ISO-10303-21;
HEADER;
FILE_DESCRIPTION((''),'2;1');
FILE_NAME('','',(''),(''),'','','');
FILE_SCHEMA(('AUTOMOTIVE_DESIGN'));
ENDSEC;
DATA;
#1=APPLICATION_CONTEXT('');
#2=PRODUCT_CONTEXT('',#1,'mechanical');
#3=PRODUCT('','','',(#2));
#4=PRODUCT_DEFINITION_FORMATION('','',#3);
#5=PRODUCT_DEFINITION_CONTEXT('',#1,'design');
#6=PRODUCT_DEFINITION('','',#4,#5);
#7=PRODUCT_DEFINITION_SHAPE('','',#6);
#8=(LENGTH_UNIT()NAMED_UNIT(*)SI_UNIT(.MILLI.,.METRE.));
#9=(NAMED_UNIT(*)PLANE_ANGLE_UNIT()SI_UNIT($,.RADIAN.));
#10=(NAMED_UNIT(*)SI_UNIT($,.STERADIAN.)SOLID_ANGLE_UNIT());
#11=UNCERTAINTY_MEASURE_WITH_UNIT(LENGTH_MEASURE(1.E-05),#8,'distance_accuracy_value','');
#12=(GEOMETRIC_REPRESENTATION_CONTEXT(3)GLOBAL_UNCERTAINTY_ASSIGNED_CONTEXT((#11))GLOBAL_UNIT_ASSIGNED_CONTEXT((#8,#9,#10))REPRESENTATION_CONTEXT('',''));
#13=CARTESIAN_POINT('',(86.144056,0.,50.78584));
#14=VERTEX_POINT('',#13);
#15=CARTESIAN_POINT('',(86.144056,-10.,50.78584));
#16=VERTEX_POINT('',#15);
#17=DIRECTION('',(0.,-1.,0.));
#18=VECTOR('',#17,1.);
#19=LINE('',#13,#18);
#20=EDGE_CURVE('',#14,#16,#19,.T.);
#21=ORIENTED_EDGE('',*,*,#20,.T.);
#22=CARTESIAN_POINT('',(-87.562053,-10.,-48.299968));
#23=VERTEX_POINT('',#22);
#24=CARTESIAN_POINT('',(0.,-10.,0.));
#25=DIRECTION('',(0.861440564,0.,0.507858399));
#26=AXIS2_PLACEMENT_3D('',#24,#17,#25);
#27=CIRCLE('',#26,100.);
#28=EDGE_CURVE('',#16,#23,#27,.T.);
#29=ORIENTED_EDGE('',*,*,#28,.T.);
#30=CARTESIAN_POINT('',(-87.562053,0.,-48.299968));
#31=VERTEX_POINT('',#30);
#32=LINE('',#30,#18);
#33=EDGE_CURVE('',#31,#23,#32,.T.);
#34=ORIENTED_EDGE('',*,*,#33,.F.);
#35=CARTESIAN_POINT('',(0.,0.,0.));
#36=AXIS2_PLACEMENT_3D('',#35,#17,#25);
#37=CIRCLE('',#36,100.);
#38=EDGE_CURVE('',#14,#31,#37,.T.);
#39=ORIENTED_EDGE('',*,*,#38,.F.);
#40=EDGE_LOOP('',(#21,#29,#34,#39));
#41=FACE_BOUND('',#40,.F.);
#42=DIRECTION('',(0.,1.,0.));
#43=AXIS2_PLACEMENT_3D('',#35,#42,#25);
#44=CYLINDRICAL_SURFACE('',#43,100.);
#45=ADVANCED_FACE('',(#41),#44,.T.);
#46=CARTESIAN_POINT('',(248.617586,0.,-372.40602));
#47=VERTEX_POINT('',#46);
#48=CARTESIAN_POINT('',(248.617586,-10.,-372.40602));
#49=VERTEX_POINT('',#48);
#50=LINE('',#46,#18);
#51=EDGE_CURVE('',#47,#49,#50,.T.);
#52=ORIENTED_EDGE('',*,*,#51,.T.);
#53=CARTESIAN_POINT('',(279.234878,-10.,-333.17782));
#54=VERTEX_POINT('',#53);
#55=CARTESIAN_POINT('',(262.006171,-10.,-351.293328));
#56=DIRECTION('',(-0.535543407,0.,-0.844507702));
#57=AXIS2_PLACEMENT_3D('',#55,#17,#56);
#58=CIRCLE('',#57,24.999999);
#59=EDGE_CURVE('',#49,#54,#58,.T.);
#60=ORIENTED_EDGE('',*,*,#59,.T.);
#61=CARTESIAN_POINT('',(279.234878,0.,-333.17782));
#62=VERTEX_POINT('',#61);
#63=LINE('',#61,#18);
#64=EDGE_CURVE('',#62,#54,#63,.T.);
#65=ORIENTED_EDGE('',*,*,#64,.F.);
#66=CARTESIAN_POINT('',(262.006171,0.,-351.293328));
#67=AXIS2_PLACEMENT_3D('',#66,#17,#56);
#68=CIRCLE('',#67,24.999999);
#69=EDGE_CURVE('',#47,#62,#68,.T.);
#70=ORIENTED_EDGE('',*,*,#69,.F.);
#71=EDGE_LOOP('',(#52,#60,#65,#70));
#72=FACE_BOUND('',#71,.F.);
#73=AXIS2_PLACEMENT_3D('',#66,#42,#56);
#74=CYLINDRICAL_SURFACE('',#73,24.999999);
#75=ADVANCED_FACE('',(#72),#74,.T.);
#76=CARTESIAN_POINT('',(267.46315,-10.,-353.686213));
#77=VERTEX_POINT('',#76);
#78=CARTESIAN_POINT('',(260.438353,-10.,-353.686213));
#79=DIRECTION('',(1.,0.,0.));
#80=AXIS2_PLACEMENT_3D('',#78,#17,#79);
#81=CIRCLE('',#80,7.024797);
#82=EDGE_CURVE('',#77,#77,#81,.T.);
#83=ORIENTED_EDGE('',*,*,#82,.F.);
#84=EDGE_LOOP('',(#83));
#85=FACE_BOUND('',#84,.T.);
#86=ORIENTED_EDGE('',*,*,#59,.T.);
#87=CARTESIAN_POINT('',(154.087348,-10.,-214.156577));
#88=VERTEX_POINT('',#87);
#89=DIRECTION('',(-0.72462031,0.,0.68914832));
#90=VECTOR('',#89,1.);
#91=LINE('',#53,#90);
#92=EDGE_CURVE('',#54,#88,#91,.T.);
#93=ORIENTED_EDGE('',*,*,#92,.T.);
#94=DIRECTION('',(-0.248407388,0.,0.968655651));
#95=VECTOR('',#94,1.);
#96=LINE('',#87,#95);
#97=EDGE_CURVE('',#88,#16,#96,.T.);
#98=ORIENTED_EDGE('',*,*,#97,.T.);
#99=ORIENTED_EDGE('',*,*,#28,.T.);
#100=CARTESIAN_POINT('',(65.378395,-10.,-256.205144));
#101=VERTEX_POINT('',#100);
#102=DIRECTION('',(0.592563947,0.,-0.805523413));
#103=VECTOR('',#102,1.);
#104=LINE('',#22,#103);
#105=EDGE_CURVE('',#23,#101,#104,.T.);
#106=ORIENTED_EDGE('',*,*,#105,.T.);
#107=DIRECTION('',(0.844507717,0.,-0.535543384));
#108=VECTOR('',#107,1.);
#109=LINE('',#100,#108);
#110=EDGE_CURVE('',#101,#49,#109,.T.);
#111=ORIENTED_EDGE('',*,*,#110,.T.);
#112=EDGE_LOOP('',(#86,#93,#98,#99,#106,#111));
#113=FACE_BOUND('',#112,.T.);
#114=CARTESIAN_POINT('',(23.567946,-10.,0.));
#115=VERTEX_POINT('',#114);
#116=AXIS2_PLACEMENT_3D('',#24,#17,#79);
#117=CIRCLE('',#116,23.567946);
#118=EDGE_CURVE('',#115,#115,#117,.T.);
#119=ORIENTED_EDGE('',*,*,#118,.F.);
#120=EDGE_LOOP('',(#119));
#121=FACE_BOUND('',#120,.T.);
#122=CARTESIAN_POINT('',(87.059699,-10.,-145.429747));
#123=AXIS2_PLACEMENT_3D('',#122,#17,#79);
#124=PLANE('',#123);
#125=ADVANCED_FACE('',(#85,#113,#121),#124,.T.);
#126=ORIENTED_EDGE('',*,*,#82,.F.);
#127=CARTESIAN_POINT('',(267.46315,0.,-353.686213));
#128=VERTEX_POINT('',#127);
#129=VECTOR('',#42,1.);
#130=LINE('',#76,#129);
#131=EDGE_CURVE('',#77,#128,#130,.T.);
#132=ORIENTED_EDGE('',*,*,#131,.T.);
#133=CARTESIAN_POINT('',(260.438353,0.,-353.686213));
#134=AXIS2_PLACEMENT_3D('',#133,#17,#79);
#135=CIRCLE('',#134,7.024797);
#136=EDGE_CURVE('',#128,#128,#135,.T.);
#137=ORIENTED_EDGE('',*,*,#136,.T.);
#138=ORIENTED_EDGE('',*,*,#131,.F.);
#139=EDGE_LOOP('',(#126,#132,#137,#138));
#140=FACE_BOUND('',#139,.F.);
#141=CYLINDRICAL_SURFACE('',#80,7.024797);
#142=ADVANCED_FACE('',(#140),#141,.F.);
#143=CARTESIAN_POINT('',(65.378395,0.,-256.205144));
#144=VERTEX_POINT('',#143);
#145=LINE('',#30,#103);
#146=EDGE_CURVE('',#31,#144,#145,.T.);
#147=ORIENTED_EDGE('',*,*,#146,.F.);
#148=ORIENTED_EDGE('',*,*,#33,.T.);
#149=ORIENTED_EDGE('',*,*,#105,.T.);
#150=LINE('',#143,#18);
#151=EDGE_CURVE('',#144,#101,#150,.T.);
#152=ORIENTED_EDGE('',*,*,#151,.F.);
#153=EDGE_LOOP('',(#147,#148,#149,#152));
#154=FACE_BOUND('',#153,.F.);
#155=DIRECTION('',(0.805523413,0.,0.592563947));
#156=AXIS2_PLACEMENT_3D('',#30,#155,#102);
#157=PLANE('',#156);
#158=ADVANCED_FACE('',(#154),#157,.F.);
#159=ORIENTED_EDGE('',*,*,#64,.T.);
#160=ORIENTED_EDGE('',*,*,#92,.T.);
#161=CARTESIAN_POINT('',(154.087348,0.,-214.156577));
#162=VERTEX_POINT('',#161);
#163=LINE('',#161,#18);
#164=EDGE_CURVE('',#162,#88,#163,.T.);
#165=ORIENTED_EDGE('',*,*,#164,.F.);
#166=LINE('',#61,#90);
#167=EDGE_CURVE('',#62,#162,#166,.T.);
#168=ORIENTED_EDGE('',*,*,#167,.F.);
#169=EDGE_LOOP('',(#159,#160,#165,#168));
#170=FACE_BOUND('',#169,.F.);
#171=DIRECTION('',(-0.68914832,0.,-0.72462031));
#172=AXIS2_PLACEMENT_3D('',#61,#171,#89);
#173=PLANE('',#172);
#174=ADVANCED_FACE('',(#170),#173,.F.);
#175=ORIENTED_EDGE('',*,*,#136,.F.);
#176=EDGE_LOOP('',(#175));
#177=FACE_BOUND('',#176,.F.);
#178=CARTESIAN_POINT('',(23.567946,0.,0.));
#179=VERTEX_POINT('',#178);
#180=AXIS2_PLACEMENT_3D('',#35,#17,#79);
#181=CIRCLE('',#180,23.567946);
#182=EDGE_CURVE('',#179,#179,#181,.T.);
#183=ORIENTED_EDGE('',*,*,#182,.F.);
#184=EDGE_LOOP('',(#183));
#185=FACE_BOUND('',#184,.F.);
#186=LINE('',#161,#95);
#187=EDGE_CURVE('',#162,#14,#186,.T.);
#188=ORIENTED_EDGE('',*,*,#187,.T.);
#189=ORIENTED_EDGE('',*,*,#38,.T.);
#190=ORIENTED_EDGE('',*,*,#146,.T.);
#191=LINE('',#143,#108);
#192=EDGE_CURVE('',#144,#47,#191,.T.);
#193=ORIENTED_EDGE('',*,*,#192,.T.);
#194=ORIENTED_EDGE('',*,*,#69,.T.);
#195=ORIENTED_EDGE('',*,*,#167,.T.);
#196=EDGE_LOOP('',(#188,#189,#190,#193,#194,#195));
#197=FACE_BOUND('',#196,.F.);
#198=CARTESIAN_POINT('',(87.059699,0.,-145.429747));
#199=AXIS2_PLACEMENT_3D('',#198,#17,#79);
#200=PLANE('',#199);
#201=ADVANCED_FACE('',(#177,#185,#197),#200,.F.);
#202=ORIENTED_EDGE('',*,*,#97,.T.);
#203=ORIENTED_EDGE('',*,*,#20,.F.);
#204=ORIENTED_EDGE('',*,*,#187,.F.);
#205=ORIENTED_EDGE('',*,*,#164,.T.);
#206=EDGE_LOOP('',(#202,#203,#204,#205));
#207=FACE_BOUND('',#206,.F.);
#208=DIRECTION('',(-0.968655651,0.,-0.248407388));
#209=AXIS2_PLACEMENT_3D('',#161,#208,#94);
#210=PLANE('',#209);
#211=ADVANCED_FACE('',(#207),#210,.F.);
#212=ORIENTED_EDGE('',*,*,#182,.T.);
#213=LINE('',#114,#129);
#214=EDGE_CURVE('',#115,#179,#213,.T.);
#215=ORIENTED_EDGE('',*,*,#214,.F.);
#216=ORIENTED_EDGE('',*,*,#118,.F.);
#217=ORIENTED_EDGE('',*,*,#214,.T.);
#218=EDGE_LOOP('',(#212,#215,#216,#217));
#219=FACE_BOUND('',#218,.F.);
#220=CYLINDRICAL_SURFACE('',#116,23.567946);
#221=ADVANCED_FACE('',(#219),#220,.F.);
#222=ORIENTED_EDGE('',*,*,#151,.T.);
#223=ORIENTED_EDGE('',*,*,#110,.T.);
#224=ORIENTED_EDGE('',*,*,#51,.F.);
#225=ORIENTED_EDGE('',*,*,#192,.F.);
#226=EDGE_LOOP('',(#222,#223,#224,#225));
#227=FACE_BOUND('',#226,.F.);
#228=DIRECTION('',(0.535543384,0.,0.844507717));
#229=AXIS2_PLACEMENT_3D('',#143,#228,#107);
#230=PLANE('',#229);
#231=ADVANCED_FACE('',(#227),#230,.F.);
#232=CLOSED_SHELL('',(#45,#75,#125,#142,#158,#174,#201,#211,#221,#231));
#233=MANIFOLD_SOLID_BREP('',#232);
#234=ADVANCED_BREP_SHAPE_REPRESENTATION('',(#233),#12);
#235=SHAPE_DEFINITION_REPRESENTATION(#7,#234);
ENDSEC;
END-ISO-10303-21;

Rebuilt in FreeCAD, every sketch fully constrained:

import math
import FreeCAD as App
import Part
import Sketcher

doc = App.newDocument("Part")
body = doc.addObject("PartDesign::Body", "Body")

# Sketch on XZ plane
sketch1 = body.newObject("Sketcher::SketchObject", "Sketch")
sketch1.AttachmentSupport = (doc.getObject("XZ_Plane"), [""])
sketch1.MapMode = "FlatFace"
sketch1.addGeometry([
    Part.LineSegment(App.Vector(154, -214, 0), App.Vector(86, 51, 0)),  # 0
    Part.ArcOfCircle(Part.Circle(App.Vector(0, 0, 0), App.Vector(0, 0, 1), 100), math.radians(31), math.radians(209)),  # 1
    Part.LineSegment(App.Vector(-88, -48, 0), App.Vector(65, -256, 0)),  # 2
    Part.LineSegment(App.Vector(65, -256, 0), App.Vector(249, -372, 0)),  # 3
    Part.ArcOfCircle(Part.Circle(App.Vector(262, -351, 0), App.Vector(0, 0, 1), 25), math.radians(-122), math.radians(46)),  # 4
    Part.LineSegment(App.Vector(279, -333, 0), App.Vector(154, -214, 0)),  # 5
], False)
sketch1.addConstraint([
    Sketcher.Constraint("Coincident", 0, 2, 1, 1),
    Sketcher.Constraint("Coincident", 1, 2, 2, 1),
    Sketcher.Constraint("Coincident", 2, 2, 3, 1),
    Sketcher.Constraint("Tangent", 3, 2, 4, 1),
    Sketcher.Constraint("Tangent", 4, 2, 5, 1),
    Sketcher.Constraint("Coincident", 5, 2, 0, 1),
    Sketcher.Constraint("Coincident", 1, 3, -1, 1),
    Sketcher.Constraint("Radius", 1, 100.0),
    Sketcher.Constraint("Radius", 4, 24.999999),
    Sketcher.Constraint("DistanceY", 3, 2, 4, 2, 39.2282),
    Sketcher.Constraint("Distance", 3, 216.977521),
    Sketcher.Constraint("Distance", 5, 172.707732),
    Sketcher.Constraint("DistanceX", -1, 1, 4, 3, 262.006171),
    Sketcher.Constraint("DistanceY", -1, 1, 0, 2, 50.78584),
    Sketcher.Constraint("DistanceY", 1, 2, -1, 1, 48.299968),
    Sketcher.Constraint("DistanceY", 3, 2, -1, 1, 372.40602),
    Sketcher.Constraint("DistanceX", -1, 1, 5, 2, 154.087348),
])
pad1 = body.newObject("PartDesign::Pad", "Pad")
pad1.Profile = sketch1
pad1.Length = 10

# Sketch on XZ plane
sketch2 = body.newObject("Sketcher::SketchObject", "Sketch001")
sketch2.AttachmentSupport = (doc.getObject("XZ_Plane"), [""])
sketch2.MapMode = "FlatFace"
sketch2.AttachmentOffset = App.Placement(App.Vector(0, 0, 10), App.Rotation())
sketch2.addGeometry([
    Part.Circle(App.Vector(0, 0, 0), App.Vector(0, 0, 1), 24),
    Part.Circle(App.Vector(260, -354, 0), App.Vector(0, 0, 1), 7),
], False)
sketch2.addConstraint([
    Sketcher.Constraint("Coincident", 0, 3, -1, 1),
    Sketcher.Constraint("Diameter", 0, 47.135892),
    Sketcher.Constraint("Diameter", 1, 14.049594),
    Sketcher.Constraint("DistanceX", -1, 1, 1, 3, 260.438353),
    Sketcher.Constraint("DistanceY", 1, 3, -1, 1, 353.686213),
])
pocket1 = body.newObject("PartDesign::Pocket", "Pocket")
pocket1.Profile = sketch2
pocket1.Length = 71.12

doc.recompute()
